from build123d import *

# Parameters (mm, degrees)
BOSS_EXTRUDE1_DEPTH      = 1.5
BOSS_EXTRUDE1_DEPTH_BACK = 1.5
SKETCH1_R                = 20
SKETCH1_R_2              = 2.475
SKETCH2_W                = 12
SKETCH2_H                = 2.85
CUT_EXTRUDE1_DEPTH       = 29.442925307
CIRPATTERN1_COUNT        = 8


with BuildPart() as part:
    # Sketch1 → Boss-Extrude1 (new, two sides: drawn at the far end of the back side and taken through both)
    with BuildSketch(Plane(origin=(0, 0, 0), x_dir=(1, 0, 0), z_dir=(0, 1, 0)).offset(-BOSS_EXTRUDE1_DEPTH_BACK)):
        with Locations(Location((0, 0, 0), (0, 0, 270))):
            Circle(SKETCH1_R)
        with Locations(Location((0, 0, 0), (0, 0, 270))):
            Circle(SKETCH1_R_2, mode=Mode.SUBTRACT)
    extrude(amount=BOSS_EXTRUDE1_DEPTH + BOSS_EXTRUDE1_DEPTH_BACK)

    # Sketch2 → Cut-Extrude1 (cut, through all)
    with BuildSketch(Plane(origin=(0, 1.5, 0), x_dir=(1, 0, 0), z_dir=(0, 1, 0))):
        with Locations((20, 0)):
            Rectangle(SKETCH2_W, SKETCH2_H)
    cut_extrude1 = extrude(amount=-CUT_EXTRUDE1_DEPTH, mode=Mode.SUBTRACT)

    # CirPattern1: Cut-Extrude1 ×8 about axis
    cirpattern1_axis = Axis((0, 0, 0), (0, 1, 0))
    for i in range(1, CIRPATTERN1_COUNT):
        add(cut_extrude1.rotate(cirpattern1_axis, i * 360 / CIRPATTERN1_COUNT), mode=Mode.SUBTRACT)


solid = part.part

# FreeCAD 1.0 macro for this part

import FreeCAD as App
import Part
import Sketcher
from FreeCAD import Vector
Q = App.Units.Quantity

doc = App.newDocument("Part")
body = doc.addObject("PartDesign::Body", "Body")

# Sketch on XZ plane
sketch1 = body.newObject("Sketcher::SketchObject", "Sketch")
sketch1.AttachmentSupport = (doc.getObject("XZ_Plane"), [""])
sketch1.MapMode = "FlatFace"
sketch1.addGeometry(Part.Circle(Vector(0, 0, 0), Vector(0, 0, 1), 20), False)
sketch1.addGeometry(Part.Circle(Vector(0, 0, 0), Vector(0, 0, 1), 2.5), False)
sketch1.addConstraint(Sketcher.Constraint("Coincident", 0, 3, -1, 1))
sketch1.addConstraint(Sketcher.Constraint("Coincident", 1, 3, -1, 1))
sketch1.addConstraint(Sketcher.Constraint("Diameter", 0, Q("40 mm")))
sketch1.addConstraint(Sketcher.Constraint("Diameter", 1, Q("4.95 mm")))
pad1 = body.newObject("PartDesign::Pad", "Pad")
pad1.Profile = sketch1
pad1.Type = "TwoLengths"
pad1.Length = 1.5
pad1.Length2 = 1.5
pad1.Reversed = True

# Sketch on XZ plane
sketch2 = body.newObject("Sketcher::SketchObject", "Sketch001")
sketch2.AttachmentSupport = (doc.getObject("XZ_Plane"), [""])
sketch2.MapMode = "FlatFace"
sketch2.AttachmentOffset = App.Placement(Vector(0, 0, -1.5), App.Rotation())
sketch2.addGeometry(Part.LineSegment(Vector(14, -1.4, 0), Vector(14, 1.4, 0)), False)
sketch2.addGeometry(Part.LineSegment(Vector(14, 1.4, 0), Vector(26, 1.4, 0)), False)
sketch2.addGeometry(Part.LineSegment(Vector(26, 1.4, 0), Vector(26, -1.4, 0)), False)
sketch2.addGeometry(Part.LineSegment(Vector(26, -1.4, 0), Vector(14, -1.4, 0)), False)
sketch2.addConstraint(Sketcher.Constraint("Coincident", 0, 2, 1, 1))
sketch2.addConstraint(Sketcher.Constraint("Coincident", 1, 2, 2, 1))
sketch2.addConstraint(Sketcher.Constraint("Coincident", 2, 2, 3, 1))
sketch2.addConstraint(Sketcher.Constraint("Coincident", 3, 2, 0, 1))
sketch2.addConstraint(Sketcher.Constraint("Vertical", 0))
sketch2.addConstraint(Sketcher.Constraint("Horizontal", 1))
sketch2.addConstraint(Sketcher.Constraint("Vertical", 2))
sketch2.addConstraint(Sketcher.Constraint("Horizontal", 3))
sketch2.addConstraint(Sketcher.Constraint("DistanceX", 1, 1, 1, 2, Q("12 mm")))
sketch2.addConstraint(Sketcher.Constraint("DistanceX", -1, 1, 0, 2, Q("14 mm")))
sketch2.addConstraint(Sketcher.Constraint("DistanceY", 0, 1, 0, 2, Q("2.85 mm")))
sketch2.addConstraint(Sketcher.Constraint("DistanceY", -1, 1, 0, 2, Q("1.425 mm")))
pocket1 = body.newObject("PartDesign::Pocket", "Pocket")
pocket1.Profile = sketch2
pocket1.Type = "ThroughAll"
pocket1.Reversed = True
doc.recompute()

polarpattern = body.newObject("PartDesign::PolarPattern", "PolarPattern")
polarpattern.Originals = [pocket1]
polarpattern.Axis = (doc.getObject("Y_Axis"), [""])
polarpattern.Angle = 360
polarpattern.Occurrences = 8
body.Tip = polarpattern

doc.recompute()
